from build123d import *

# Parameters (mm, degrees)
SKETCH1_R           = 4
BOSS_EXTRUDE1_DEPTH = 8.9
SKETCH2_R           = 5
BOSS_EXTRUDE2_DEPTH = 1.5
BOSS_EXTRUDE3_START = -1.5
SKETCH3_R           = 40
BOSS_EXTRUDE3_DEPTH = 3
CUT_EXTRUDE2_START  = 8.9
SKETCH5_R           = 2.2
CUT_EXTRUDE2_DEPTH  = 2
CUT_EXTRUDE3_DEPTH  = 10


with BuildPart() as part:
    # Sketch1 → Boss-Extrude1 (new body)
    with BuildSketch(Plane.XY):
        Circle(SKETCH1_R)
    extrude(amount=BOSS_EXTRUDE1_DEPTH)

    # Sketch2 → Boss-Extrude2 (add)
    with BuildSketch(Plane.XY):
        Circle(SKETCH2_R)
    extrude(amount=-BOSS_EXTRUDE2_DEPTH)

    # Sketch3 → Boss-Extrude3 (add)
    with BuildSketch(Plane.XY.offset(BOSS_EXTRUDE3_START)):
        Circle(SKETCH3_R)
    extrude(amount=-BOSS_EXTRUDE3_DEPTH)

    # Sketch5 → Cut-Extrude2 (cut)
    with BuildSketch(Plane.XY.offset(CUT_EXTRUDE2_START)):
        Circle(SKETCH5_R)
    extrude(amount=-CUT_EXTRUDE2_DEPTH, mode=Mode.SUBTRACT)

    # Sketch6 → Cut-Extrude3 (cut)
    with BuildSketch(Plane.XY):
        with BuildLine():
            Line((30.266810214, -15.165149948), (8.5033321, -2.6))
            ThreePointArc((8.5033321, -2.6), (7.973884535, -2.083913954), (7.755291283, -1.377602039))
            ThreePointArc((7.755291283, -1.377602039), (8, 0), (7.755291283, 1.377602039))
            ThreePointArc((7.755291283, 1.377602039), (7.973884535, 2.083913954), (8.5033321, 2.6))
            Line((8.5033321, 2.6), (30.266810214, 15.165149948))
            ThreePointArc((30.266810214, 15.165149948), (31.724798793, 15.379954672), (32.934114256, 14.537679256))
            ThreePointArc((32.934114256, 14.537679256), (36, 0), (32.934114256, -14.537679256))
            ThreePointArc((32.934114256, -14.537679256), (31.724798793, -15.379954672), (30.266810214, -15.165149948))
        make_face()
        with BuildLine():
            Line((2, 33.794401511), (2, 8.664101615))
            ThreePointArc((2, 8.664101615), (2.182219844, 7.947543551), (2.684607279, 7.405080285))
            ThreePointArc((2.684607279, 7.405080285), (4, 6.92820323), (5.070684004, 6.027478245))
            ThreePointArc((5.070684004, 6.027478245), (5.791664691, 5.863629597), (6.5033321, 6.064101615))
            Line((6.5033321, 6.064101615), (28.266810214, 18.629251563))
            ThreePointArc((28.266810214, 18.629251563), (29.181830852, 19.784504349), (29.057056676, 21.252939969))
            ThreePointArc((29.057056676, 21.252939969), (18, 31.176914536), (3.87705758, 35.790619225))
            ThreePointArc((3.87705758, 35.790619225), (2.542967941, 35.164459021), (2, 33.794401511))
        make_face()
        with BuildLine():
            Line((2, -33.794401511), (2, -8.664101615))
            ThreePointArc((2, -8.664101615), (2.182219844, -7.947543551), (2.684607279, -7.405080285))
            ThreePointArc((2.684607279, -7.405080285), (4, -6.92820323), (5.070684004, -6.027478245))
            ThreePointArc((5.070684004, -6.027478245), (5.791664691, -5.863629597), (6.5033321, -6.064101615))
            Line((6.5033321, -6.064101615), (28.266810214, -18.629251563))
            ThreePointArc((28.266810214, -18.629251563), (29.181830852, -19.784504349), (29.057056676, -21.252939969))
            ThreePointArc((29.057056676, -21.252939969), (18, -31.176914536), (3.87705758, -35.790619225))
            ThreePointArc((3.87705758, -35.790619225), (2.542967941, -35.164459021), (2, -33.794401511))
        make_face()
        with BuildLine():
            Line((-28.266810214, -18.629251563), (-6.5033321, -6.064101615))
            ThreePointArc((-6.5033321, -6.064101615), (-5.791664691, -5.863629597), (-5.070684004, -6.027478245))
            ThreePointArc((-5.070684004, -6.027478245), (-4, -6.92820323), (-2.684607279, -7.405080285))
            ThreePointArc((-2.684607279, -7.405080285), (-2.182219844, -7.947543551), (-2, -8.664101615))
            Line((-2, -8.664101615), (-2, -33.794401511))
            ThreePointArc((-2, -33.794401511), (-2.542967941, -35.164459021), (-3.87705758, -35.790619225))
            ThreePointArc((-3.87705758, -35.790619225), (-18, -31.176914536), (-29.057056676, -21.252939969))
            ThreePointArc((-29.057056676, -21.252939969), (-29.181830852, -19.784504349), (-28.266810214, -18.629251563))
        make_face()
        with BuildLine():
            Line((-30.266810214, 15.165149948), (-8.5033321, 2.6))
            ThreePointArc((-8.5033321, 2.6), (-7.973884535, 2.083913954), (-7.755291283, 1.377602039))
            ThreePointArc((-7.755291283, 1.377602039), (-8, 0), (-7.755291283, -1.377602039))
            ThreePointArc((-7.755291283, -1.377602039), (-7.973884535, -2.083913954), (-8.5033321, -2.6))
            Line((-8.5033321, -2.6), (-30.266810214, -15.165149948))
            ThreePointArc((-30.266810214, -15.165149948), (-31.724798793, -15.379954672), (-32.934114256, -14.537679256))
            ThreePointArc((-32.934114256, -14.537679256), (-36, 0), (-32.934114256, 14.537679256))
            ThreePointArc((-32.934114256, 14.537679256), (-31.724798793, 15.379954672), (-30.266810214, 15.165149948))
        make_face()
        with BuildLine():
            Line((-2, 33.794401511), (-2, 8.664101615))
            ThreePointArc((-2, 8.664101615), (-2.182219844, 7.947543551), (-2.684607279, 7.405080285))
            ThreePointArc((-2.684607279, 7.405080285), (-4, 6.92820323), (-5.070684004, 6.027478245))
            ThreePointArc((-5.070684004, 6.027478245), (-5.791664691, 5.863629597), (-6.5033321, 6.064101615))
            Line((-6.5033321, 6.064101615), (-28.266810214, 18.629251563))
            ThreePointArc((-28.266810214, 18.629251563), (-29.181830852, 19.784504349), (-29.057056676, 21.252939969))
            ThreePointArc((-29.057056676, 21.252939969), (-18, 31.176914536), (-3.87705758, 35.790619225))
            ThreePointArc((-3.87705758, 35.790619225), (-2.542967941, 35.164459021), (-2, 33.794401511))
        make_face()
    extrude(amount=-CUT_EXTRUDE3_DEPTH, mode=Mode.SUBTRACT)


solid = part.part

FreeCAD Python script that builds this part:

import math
import FreeCAD as App
import Part
import Sketcher
Q = App.Units.Quantity

doc = App.newDocument("Part")
body = doc.addObject("PartDesign::Body", "Body")

sketch1 = body.newObject("Sketcher::SketchObject", "Sketch")
sketch1.AttachmentSupport = (doc.getObject("XY_Plane"), [""])
sketch1.MapMode = "FlatFace"
sketch1.addGeometry(Part.Circle(App.Vector(0, 0, 0), App.Vector(0, 0, 1), 4), False)
sketch1.addConstraint(Sketcher.Constraint("Coincident", 0, 3, -1, 1))
sketch1.addConstraint(Sketcher.Constraint("Diameter", 0, 8.0))
pad1 = body.newObject("PartDesign::Pad", "Pad")
pad1.Profile = sketch1
pad1.Length = 8.9

sketch2 = body.newObject("Sketcher::SketchObject", "Sketch001")
sketch2.AttachmentSupport = (doc.getObject("XY_Plane"), [""])
sketch2.MapMode = "FlatFace"
sketch2.addGeometry(Part.Circle(App.Vector(0, 0, 0), App.Vector(0, 0, 1), 5), False)
sketch2.addConstraint(Sketcher.Constraint("Coincident", 0, 3, -1, 1))
sketch2.addConstraint(Sketcher.Constraint("Diameter", 0, 10.0))
pad2 = body.newObject("PartDesign::Pad", "Pad001")
pad2.Profile = sketch2
pad2.Length = 1.5
pad2.Reversed = True

sketch3 = body.newObject("Sketcher::SketchObject", "Sketch002")
sketch3.AttachmentSupport = (doc.getObject("XY_Plane"), [""])
sketch3.MapMode = "FlatFace"
sketch3.AttachmentOffset = App.Placement(App.Vector(0, 0, -1.5), App.Rotation())
sketch3.addGeometry(Part.Circle(App.Vector(0, 0, 0), App.Vector(0, 0, 1), 40), False)
sketch3.addConstraint(Sketcher.Constraint("Coincident", 0, 3, -1, 1))
sketch3.addConstraint(Sketcher.Constraint("Diameter", 0, 80.0))
pad3 = body.newObject("PartDesign::Pad", "Pad002")
pad3.Profile = sketch3
pad3.Length = 3
pad3.Reversed = True

sketch4 = body.newObject("Sketcher::SketchObject", "Sketch003")
sketch4.AttachmentSupport = (doc.getObject("XY_Plane"), [""])
sketch4.MapMode = "FlatFace"
sketch4.AttachmentOffset = App.Placement(App.Vector(0, 0, 8.9), App.Rotation())
sketch4.addGeometry(Part.Circle(App.Vector(0, 0, 0), App.Vector(0, 0, 1), 2.2), False)
sketch4.addConstraint(Sketcher.Constraint("Coincident", 0, 3, -1, 1))
sketch4.addConstraint(Sketcher.Constraint("Diameter", 0, 4.4))
pocket1 = body.newObject("PartDesign::Pocket", "Pocket")
pocket1.Profile = sketch4
pocket1.Length = 2

sketch5 = body.newObject("Sketcher::SketchObject", "Sketch004")
sketch5.AttachmentSupport = (doc.getObject("XY_Plane"), [""])
sketch5.MapMode = "FlatFace"
sketch5.addGeometry(Part.LineSegment(App.Vector(8.5, -2.6, 0), App.Vector(30.3, -15.2, 0)), False)
sketch5.addGeometry(Part.ArcOfCircle(Part.Circle(App.Vector(31.3, -13.4, 0), App.Vector(0, 0, 1), 2), math.radians(-120), math.radians(-34)), False)
sketch5.addGeometry(Part.ArcOfCircle(Part.Circle(App.Vector(0, 0, 0), App.Vector(0, 0, 1), 36), math.radians(-24), math.radians(24)), False)
sketch5.addGeometry(Part.ArcOfCircle(Part.Circle(App.Vector(31.3, 13.4, 0), App.Vector(0, 0, 1), 2), math.radians(34), math.radians(120)), False)
sketch5.addGeometry(Part.LineSegment(App.Vector(30.3, 15.2, 0), App.Vector(8.5, 2.6, 0)), False)
sketch5.addGeometry(Part.ArcOfCircle(Part.Circle(App.Vector(9.3, 1.3, 0), App.Vector(0, 0, 1), 1.5), math.radians(120), math.radians(177)), False)
sketch5.addGeometry(Part.ArcOfCircle(Part.Circle(App.Vector(4, 0, 0), App.Vector(0, 0, 1), 4), math.radians(-20), math.radians(20)), False)
sketch5.addGeometry(Part.ArcOfCircle(Part.Circle(App.Vector(9.3, -1.3, 0), App.Vector(0, 0, 1), 1.5), math.radians(-177), math.radians(-120)), False)
sketch5.addGeometry(Part.LineSegment(App.Vector(2, 33.8, 0), App.Vector(2, 8.7, 0)), False)
sketch5.addGeometry(Part.ArcOfCircle(Part.Circle(App.Vector(3.5, 8.7, 0), App.Vector(0, 0, 1), 1.5), math.radians(-180), math.radians(-123)), False)
sketch5.addGeometry(Part.ArcOfCircle(Part.Circle(App.Vector(2, 3.5, 0), App.Vector(0, 0, 1), 4), math.radians(40), math.radians(80)), False)
sketch5.addGeometry(Part.ArcOfCircle(Part.Circle(App.Vector(5.8, 7.4, 0), App.Vector(0, 0, 1), 1.5), math.radians(-117), math.radians(-60)), False)
sketch5.addGeometry(Part.LineSegment(App.Vector(6.5, 6.1, 0), App.Vector(28.3, 18.6, 0)), False)
sketch5.addGeometry(Part.ArcOfCircle(Part.Circle(App.Vector(27.3, 20.4, 0), App.Vector(0, 0, 1), 2), math.radians(-60), math.radians(26)), False)
sketch5.addGeometry(Part.ArcOfCircle(Part.Circle(App.Vector(0, 0, 0), App.Vector(0, 0, 1), 36), math.radians(36), math.radians(84)), False)
sketch5.addGeometry(Part.ArcOfCircle(Part.Circle(App.Vector(4, 33.8, 0), App.Vector(0, 0, 1), 2), math.radians(94), math.radians(180)), False)
sketch5.addGeometry(Part.LineSegment(App.Vector(2, -8.7, 0), App.Vector(2, -33.8, 0)), False)
sketch5.addGeometry(Part.ArcOfCircle(Part.Circle(App.Vector(4, -33.8, 0), App.Vector(0, 0, 1), 2), math.radians(180), math.radians(266)), False)
sketch5.addGeometry(Part.ArcOfCircle(Part.Circle(App.Vector(0, 0, 0), App.Vector(0, 0, 1), 36), math.radians(-84), math.radians(-36)), False)
sketch5.addGeometry(Part.ArcOfCircle(Part.Circle(App.Vector(27.3, -20.4, 0), App.Vector(0, 0, 1), 2), math.radians(-26), math.radians(60)), False)
sketch5.addGeometry(Part.LineSegment(App.Vector(28.3, -18.6, 0), App.Vector(6.5, -6.1, 0)), False)
sketch5.addGeometry(Part.ArcOfCircle(Part.Circle(App.Vector(5.8, -7.4, 0), App.Vector(0, 0, 1), 1.5), math.radians(60), math.radians(117)), False)
sketch5.addGeometry(Part.ArcOfCircle(Part.Circle(App.Vector(2, -3.5, 0), App.Vector(0, 0, 1), 4), math.radians(-80), math.radians(-40)), False)
sketch5.addGeometry(Part.ArcOfCircle(Part.Circle(App.Vector(3.5, -8.7, 0), App.Vector(0, 0, 1), 1.5), math.radians(123), math.radians(180)), False)
sketch5.addGeometry(Part.LineSegment(App.Vector(-6.5, -6.1, 0), App.Vector(-28.3, -18.6, 0)), False)
sketch5.addGeometry(Part.ArcOfCircle(Part.Circle(App.Vector(-27.3, -20.4, 0), App.Vector(0, 0, 1), 2), math.radians(120), math.radians(206)), False)
sketch5.addGeometry(Part.ArcOfCircle(Part.Circle(App.Vector(0, 0, 0), App.Vector(0, 0, 1), 36), math.radians(-144), math.radians(-96)), False)
sketch5.addGeometry(Part.ArcOfCircle(Part.Circle(App.Vector(-4, -33.8, 0), App.Vector(0, 0, 1), 2), math.radians(-86), math.radians(0)), False)
sketch5.addGeometry(Part.LineSegment(App.Vector(-2, -33.8, 0), App.Vector(-2, -8.7, 0)), False)
sketch5.addGeometry(Part.ArcOfCircle(Part.Circle(App.Vector(-3.5, -8.7, 0), App.Vector(0, 0, 1), 1.5), math.radians(0), math.radians(57)), False)
sketch5.addGeometry(Part.ArcOfCircle(Part.Circle(App.Vector(-2, -3.5, 0), App.Vector(0, 0, 1), 4), math.radians(-140), math.radians(-100)), False)
sketch5.addGeometry(Part.ArcOfCircle(Part.Circle(App.Vector(-5.8, -7.4, 0), App.Vector(0, 0, 1), 1.5), math.radians(63), math.radians(120)), False)
sketch5.addGeometry(Part.LineSegment(App.Vector(-8.5, 2.6, 0), App.Vector(-30.3, 15.2, 0)), False)
sketch5.addGeometry(Part.ArcOfCircle(Part.Circle(App.Vector(-31.3, 13.4, 0), App.Vector(0, 0, 1), 2), math.radians(60), math.radians(146)), False)
sketch5.addGeometry(Part.ArcOfCircle(Part.Circle(App.Vector(0, 0, 0), App.Vector(0, 0, 1), 36), math.radians(156), math.radians(204)), False)
sketch5.addGeometry(Part.ArcOfCircle(Part.Circle(App.Vector(-31.3, -13.4, 0), App.Vector(0, 0, 1), 2), math.radians(-146), math.radians(-60)), False)
sketch5.addGeometry(Part.LineSegment(App.Vector(-30.3, -15.2, 0), App.Vector(-8.5, -2.6, 0)), False)
sketch5.addGeometry(Part.ArcOfCircle(Part.Circle(App.Vector(-9.3, -1.3, 0), App.Vector(0, 0, 1), 1.5), math.radians(-60), math.radians(-3)), False)
sketch5.addGeometry(Part.ArcOfCircle(Part.Circle(App.Vector(-4, 0, 0), App.Vector(0, 0, 1), 4), math.radians(160), math.radians(200)), False)
sketch5.addGeometry(Part.ArcOfCircle(Part.Circle(App.Vector(-9.3, 1.3, 0), App.Vector(0, 0, 1), 1.5), math.radians(3), math.radians(60)), False)
sketch5.addGeometry(Part.LineSegment(App.Vector(-2, 8.7, 0), App.Vector(-2, 33.8, 0)), False)
sketch5.addGeometry(Part.ArcOfCircle(Part.Circle(App.Vector(-4, 33.8, 0), App.Vector(0, 0, 1), 2), math.radians(0), math.radians(86)), False)
sketch5.addGeometry(Part.ArcOfCircle(Part.Circle(App.Vector(0, 0, 0), App.Vector(0, 0, 1), 36), math.radians(96), math.radians(144)), False)
sketch5.addGeometry(Part.ArcOfCircle(Part.Circle(App.Vector(-27.3, 20.4, 0), App.Vector(0, 0, 1), 2), math.radians(154), math.radians(240)), False)
sketch5.addGeometry(Part.LineSegment(App.Vector(-28.3, 18.6, 0), App.Vector(-6.5, 6.1, 0)), False)
sketch5.addGeometry(Part.ArcOfCircle(Part.Circle(App.Vector(-5.8, 7.4, 0), App.Vector(0, 0, 1), 1.5), math.radians(-120), math.radians(-63)), False)
sketch5.addGeometry(Part.ArcOfCircle(Part.Circle(App.Vector(-2, 3.5, 0), App.Vector(0, 0, 1), 4), math.radians(100), math.radians(140)), False)
sketch5.addGeometry(Part.ArcOfCircle(Part.Circle(App.Vector(-3.5, 8.7, 0), App.Vector(0, 0, 1), 1.5), math.radians(-57), math.radians(0)), False)
sketch5.addConstraint(Sketcher.Constraint("Tangent", 0, 2, 1, 1))
sketch5.addConstraint(Sketcher.Constraint("Coincident", 1, 2, 2, 1))
sketch5.addConstraint(Sketcher.Constraint("Coincident", 2, 2, 3, 1))
sketch5.addConstraint(Sketcher.Constraint("Tangent", 3, 2, 4, 1))
sketch5.addConstraint(Sketcher.Constraint("Tangent", 4, 2, 5, 1))
sketch5.addConstraint(Sketcher.Constraint("Coincident", 5, 2, 6, 2))
sketch5.addConstraint(Sketcher.Constraint("Coincident", 6, 1, 7, 1))
sketch5.addConstraint(Sketcher.Constraint("Tangent", 7, 2, 0, 1))
sketch5.addConstraint(Sketcher.Constraint("Tangent", 8, 2, 9, 1))
sketch5.addConstraint(Sketcher.Constraint("Coincident", 9, 2, 10, 2))
sketch5.addConstraint(Sketcher.Constraint("Coincident", 10, 1, 11, 1))
sketch5.addConstraint(Sketcher.Constraint("Tangent", 11, 2, 12, 1))
sketch5.addConstraint(Sketcher.Constraint("Tangent", 12, 2, 13, 1))
sketch5.addConstraint(Sketcher.Constraint("Coincident", 13, 2, 14, 1))
sketch5.addConstraint(Sketcher.Constraint("Coincident", 14, 2, 15, 1))
sketch5.addConstraint(Sketcher.Constraint("Tangent", 15, 2, 8, 1))
sketch5.addConstraint(Sketcher.Constraint("Tangent", 16, 2, 17, 1))
sketch5.addConstraint(Sketcher.Constraint("Coincident", 17, 2, 18, 1))
sketch5.addConstraint(Sketcher.Constraint("Coincident", 18, 2, 19, 1))
sketch5.addConstraint(Sketcher.Constraint("Tangent", 19, 2, 20, 1))
sketch5.addConstraint(Sketcher.Constraint("Tangent", 20, 2, 21, 1))
sketch5.addConstraint(Sketcher.Constraint("Coincident", 21, 2, 22, 2))
sketch5.addConstraint(Sketcher.Constraint("Coincident", 22, 1, 23, 1))
sketch5.addConstraint(Sketcher.Constraint("Tangent", 23, 2, 16, 1))
sketch5.addConstraint(Sketcher.Constraint("Tangent", 24, 2, 25, 1))
sketch5.addConstraint(Sketcher.Constraint("Coincident", 25, 2, 26, 1))
sketch5.addConstraint(Sketcher.Constraint("Coincident", 26, 2, 27, 1))
sketch5.addConstraint(Sketcher.Constraint("Tangent", 27, 2, 28, 1))
sketch5.addConstraint(Sketcher.Constraint("Tangent", 28, 2, 29, 1))
sketch5.addConstraint(Sketcher.Constraint("Coincident", 29, 2, 30, 2))
sketch5.addConstraint(Sketcher.Constraint("Coincident", 30, 1, 31, 1))
sketch5.addConstraint(Sketcher.Constraint("Tangent", 31, 2, 24, 1))
sketch5.addConstraint(Sketcher.Constraint("Tangent", 32, 2, 33, 1))
sketch5.addConstraint(Sketcher.Constraint("Coincident", 33, 2, 34, 1))
sketch5.addConstraint(Sketcher.Constraint("Coincident", 34, 2, 35, 1))
sketch5.addConstraint(Sketcher.Constraint("Tangent", 35, 2, 36, 1))
sketch5.addConstraint(Sketcher.Constraint("Tangent", 36, 2, 37, 1))
sketch5.addConstraint(Sketcher.Constraint("Coincident", 37, 2, 38, 2))
sketch5.addConstraint(Sketcher.Constraint("Coincident", 38, 1, 39, 1))
sketch5.addConstraint(Sketcher.Constraint("Tangent", 39, 2, 32, 1))
sketch5.addConstraint(Sketcher.Constraint("Tangent", 40, 2, 41, 1))
sketch5.addConstraint(Sketcher.Constraint("Coincident", 41, 2, 42, 1))
sketch5.addConstraint(Sketcher.Constraint("Coincident", 42, 2, 43, 1))
sketch5.addConstraint(Sketcher.Constraint("Tangent", 43, 2, 44, 1))
sketch5.addConstraint(Sketcher.Constraint("Tangent", 44, 2, 45, 1))
sketch5.addConstraint(Sketcher.Constraint("Coincident", 45, 2, 46, 2))
sketch5.addConstraint(Sketcher.Constraint("Coincident", 46, 1, 47, 1))
sketch5.addConstraint(Sketcher.Constraint("Tangent", 47, 2, 40, 1))
sketch5.addConstraint(Sketcher.Constraint("Vertical", 8))
sketch5.addConstraint(Sketcher.Constraint("Vertical", 16))
sketch5.addConstraint(Sketcher.Constraint("Vertical", 28))
sketch5.addConstraint(Sketcher.Constraint("Vertical", 40))
sketch5.addConstraint(Sketcher.Constraint("Coincident", 2, 3, -1, 1))
sketch5.addConstraint(Sketcher.Constraint("Coincident", 14, 3, -1, 1))
sketch5.addConstraint(Sketcher.Constraint("Coincident", 18, 3, -1, 1))
sketch5.addConstraint(Sketcher.Constraint("Coincident", 26, 3, -1, 1))
sketch5.addConstraint(Sketcher.Constraint("Coincident", 34, 3, -1, 1))
sketch5.addConstraint(Sketcher.Constraint("Coincident", 42, 3, -1, 1))
sketch5.addConstraint(Sketcher.Constraint("Equal", 1, 3))
sketch5.addConstraint(Sketcher.Constraint("Equal", 5, 7))
sketch5.addConstraint(Sketcher.Constraint("Equal", 7, 9))
sketch5.addConstraint(Sketcher.Constraint("Equal", 6, 10))
sketch5.addConstraint(Sketcher.Constraint("Equal", 9, 11))
sketch5.addConstraint(Sketcher.Constraint("Equal", 3, 13))
sketch5.addConstraint(Sketcher.Constraint("Equal", 2, 14))
sketch5.addConstraint(Sketcher.Constraint("Equal", 13, 15))
sketch5.addConstraint(Sketcher.Constraint("Equal", 15, 17))
sketch5.addConstraint(Sketcher.Constraint("Equal", 14, 18))
sketch5.addConstraint(Sketcher.Constraint("Equal", 17, 19))
sketch5.addConstraint(Sketcher.Constraint("Equal", 11, 21))
sketch5.addConstraint(Sketcher.Constraint("Equal", 10, 22))
sketch5.addConstraint(Sketcher.Constraint("Equal", 21, 23))
sketch5.addConstraint(Sketcher.Constraint("Equal", 19, 25))
sketch5.addConstraint(Sketcher.Constraint("Equal", 18, 26))
sketch5.addConstraint(Sketcher.Constraint("Equal", 25, 27))
sketch5.addConstraint(Sketcher.Constraint("Equal", 23, 29))
sketch5.addConstraint(Sketcher.Constraint("Equal", 22, 30))
sketch5.addConstraint(Sketcher.Constraint("Equal", 29, 31))
sketch5.addConstraint(Sketcher.Constraint("Equal", 27, 33))
sketch5.addConstraint(Sketcher.Constraint("Equal", 26, 34))
sketch5.addConstraint(Sketcher.Constraint("Equal", 33, 35))
sketch5.addConstraint(Sketcher.Constraint("Equal", 31, 37))
sketch5.addConstraint(Sketcher.Constraint("Equal", 30, 38))
sketch5.addConstraint(Sketcher.Constraint("Equal", 37, 39))
sketch5.addConstraint(Sketcher.Constraint("Equal", 35, 41))
sketch5.addConstraint(Sketcher.Constraint("Equal", 34, 42))
sketch5.addConstraint(Sketcher.Constraint("Equal", 41, 43))
sketch5.addConstraint(Sketcher.Constraint("Equal", 39, 45))
sketch5.addConstraint(Sketcher.Constraint("Equal", 38, 46))
sketch5.addConstraint(Sketcher.Constraint("Equal", 45, 47))
sketch5.addConstraint(Sketcher.Constraint("Symmetric", 13, 3, 25, 3, -1, 1))
sketch5.addConstraint(Sketcher.Constraint("Symmetric", 15, 3, 27, 3, -1, 1))
sketch5.addConstraint(Sketcher.Constraint("Symmetric", 10, 3, 30, 3, -1, 1))
sketch5.addConstraint(Sketcher.Constraint("Symmetric", 11, 3, 31, 3, -1, 1))
sketch5.addConstraint(Sketcher.Constraint("Symmetric", 1, 3, 33, 3, -1, 1))
sketch5.addConstraint(Sketcher.Constraint("Symmetric", 3, 3, 35, 3, -1, 1))
sketch5.addConstraint(Sketcher.Constraint("Symmetric", 5, 3, 37, 3, -1, 1))
sketch5.addConstraint(Sketcher.Constraint("Symmetric", 6, 3, 38, 3, -1, 1))
sketch5.addConstraint(Sketcher.Constraint("Symmetric", 7, 3, 39, 3, -1, 1))
sketch5.addConstraint(Sketcher.Constraint("Symmetric", 17, 3, 41, 3, -1, 1))
sketch5.addConstraint(Sketcher.Constraint("Symmetric", 19, 3, 43, 3, -1, 1))
sketch5.addConstraint(Sketcher.Constraint("Symmetric", 21, 3, 45, 3, -1, 1))
sketch5.addConstraint(Sketcher.Constraint("Symmetric", 22, 3, 46, 3, -1, 1))
sketch5.addConstraint(Sketcher.Constraint("Symmetric", 19, 3, 25, 3, -2))
sketch5.addConstraint(Sketcher.Constraint("Symmetric", 17, 3, 27, 3, -2))
sketch5.addConstraint(Sketcher.Constraint("Symmetric", 22, 3, 30, 3, -2))
sketch5.addConstraint(Sketcher.Constraint("Symmetric", 21, 3, 31, 3, -2))
sketch5.addConstraint(Sketcher.Constraint("Symmetric", 3, 3, 33, 3, -2))
sketch5.addConstraint(Sketcher.Constraint("Symmetric", 7, 3, 37, 3, -2))
sketch5.addConstraint(Sketcher.Constraint("PointOnObject", 6, 3, -1))
sketch5.addConstraint(Sketcher.Constraint("Parallel", 4, 12))
sketch5.addConstraint(Sketcher.Constraint("Horizontal", 23, 3, 29, 3))
sketch5.addConstraint(Sketcher.Constraint("Horizontal", 9, 3, 47, 3))
sketch5.addConstraint(Sketcher.Constraint("Vertical", 6, 3, 15, 3))
sketch5.addConstraint(Sketcher.Constraint("Vertical", 22, 3, 8, 2))
sketch5.addConstraint(Sketcher.Constraint("Vertical", 9, 2, 22, 1))
sketch5.addConstraint(Sketcher.Constraint("Equal", 4, 12))
sketch5.addConstraint(Sketcher.Constraint("Radius", 1, 2.0))
sketch5.addConstraint(Sketcher.Constraint("Radius", 2, 36.0))
sketch5.addConstraint(Sketcher.Constraint("Radius", 6, 4.0))
sketch5.addConstraint(Sketcher.Constraint("Radius", 5, 1.5))
sketch5.addConstraint(Sketcher.Constraint("Angle", 0, Q("-30 deg")))
sketch5.addConstraint(Sketcher.Constraint("DistanceX", -1, 1, 6, 3, 4.0))
sketch5.addConstraint(Sketcher.Constraint("DistanceY", -1, 1, 4, 2, 2.6))
sketch5.addConstraint(Sketcher.Constraint("DistanceY", 8, 2, 8, 1, 25.1303))
sketch5.addConstraint(Sketcher.Constraint("Distance", 0, 25.1303))
sketch5.addConstraint(Sketcher.Constraint("DistanceY", -1, 1, 9, 3, 8.664102))
sketch5.addConstraint(Sketcher.Constraint("DistanceY", -1, 1, 10, 3, 3.464102))
sketch5.addConstraint(Sketcher.Constraint("DistanceY", -1, 1, 11, 2, 6.064102))
sketch5.addConstraint(Sketcher.Constraint("DistanceX", -1, 1, 1, 3, 31.26681))
sketch5.addConstraint(Sketcher.Constraint("DistanceX", -1, 1, 13, 3, 27.26681))
pocket2 = body.newObject("PartDesign::Pocket", "Pocket001")
pocket2.Profile = sketch5
pocket2.Length = 10

doc.recompute()
